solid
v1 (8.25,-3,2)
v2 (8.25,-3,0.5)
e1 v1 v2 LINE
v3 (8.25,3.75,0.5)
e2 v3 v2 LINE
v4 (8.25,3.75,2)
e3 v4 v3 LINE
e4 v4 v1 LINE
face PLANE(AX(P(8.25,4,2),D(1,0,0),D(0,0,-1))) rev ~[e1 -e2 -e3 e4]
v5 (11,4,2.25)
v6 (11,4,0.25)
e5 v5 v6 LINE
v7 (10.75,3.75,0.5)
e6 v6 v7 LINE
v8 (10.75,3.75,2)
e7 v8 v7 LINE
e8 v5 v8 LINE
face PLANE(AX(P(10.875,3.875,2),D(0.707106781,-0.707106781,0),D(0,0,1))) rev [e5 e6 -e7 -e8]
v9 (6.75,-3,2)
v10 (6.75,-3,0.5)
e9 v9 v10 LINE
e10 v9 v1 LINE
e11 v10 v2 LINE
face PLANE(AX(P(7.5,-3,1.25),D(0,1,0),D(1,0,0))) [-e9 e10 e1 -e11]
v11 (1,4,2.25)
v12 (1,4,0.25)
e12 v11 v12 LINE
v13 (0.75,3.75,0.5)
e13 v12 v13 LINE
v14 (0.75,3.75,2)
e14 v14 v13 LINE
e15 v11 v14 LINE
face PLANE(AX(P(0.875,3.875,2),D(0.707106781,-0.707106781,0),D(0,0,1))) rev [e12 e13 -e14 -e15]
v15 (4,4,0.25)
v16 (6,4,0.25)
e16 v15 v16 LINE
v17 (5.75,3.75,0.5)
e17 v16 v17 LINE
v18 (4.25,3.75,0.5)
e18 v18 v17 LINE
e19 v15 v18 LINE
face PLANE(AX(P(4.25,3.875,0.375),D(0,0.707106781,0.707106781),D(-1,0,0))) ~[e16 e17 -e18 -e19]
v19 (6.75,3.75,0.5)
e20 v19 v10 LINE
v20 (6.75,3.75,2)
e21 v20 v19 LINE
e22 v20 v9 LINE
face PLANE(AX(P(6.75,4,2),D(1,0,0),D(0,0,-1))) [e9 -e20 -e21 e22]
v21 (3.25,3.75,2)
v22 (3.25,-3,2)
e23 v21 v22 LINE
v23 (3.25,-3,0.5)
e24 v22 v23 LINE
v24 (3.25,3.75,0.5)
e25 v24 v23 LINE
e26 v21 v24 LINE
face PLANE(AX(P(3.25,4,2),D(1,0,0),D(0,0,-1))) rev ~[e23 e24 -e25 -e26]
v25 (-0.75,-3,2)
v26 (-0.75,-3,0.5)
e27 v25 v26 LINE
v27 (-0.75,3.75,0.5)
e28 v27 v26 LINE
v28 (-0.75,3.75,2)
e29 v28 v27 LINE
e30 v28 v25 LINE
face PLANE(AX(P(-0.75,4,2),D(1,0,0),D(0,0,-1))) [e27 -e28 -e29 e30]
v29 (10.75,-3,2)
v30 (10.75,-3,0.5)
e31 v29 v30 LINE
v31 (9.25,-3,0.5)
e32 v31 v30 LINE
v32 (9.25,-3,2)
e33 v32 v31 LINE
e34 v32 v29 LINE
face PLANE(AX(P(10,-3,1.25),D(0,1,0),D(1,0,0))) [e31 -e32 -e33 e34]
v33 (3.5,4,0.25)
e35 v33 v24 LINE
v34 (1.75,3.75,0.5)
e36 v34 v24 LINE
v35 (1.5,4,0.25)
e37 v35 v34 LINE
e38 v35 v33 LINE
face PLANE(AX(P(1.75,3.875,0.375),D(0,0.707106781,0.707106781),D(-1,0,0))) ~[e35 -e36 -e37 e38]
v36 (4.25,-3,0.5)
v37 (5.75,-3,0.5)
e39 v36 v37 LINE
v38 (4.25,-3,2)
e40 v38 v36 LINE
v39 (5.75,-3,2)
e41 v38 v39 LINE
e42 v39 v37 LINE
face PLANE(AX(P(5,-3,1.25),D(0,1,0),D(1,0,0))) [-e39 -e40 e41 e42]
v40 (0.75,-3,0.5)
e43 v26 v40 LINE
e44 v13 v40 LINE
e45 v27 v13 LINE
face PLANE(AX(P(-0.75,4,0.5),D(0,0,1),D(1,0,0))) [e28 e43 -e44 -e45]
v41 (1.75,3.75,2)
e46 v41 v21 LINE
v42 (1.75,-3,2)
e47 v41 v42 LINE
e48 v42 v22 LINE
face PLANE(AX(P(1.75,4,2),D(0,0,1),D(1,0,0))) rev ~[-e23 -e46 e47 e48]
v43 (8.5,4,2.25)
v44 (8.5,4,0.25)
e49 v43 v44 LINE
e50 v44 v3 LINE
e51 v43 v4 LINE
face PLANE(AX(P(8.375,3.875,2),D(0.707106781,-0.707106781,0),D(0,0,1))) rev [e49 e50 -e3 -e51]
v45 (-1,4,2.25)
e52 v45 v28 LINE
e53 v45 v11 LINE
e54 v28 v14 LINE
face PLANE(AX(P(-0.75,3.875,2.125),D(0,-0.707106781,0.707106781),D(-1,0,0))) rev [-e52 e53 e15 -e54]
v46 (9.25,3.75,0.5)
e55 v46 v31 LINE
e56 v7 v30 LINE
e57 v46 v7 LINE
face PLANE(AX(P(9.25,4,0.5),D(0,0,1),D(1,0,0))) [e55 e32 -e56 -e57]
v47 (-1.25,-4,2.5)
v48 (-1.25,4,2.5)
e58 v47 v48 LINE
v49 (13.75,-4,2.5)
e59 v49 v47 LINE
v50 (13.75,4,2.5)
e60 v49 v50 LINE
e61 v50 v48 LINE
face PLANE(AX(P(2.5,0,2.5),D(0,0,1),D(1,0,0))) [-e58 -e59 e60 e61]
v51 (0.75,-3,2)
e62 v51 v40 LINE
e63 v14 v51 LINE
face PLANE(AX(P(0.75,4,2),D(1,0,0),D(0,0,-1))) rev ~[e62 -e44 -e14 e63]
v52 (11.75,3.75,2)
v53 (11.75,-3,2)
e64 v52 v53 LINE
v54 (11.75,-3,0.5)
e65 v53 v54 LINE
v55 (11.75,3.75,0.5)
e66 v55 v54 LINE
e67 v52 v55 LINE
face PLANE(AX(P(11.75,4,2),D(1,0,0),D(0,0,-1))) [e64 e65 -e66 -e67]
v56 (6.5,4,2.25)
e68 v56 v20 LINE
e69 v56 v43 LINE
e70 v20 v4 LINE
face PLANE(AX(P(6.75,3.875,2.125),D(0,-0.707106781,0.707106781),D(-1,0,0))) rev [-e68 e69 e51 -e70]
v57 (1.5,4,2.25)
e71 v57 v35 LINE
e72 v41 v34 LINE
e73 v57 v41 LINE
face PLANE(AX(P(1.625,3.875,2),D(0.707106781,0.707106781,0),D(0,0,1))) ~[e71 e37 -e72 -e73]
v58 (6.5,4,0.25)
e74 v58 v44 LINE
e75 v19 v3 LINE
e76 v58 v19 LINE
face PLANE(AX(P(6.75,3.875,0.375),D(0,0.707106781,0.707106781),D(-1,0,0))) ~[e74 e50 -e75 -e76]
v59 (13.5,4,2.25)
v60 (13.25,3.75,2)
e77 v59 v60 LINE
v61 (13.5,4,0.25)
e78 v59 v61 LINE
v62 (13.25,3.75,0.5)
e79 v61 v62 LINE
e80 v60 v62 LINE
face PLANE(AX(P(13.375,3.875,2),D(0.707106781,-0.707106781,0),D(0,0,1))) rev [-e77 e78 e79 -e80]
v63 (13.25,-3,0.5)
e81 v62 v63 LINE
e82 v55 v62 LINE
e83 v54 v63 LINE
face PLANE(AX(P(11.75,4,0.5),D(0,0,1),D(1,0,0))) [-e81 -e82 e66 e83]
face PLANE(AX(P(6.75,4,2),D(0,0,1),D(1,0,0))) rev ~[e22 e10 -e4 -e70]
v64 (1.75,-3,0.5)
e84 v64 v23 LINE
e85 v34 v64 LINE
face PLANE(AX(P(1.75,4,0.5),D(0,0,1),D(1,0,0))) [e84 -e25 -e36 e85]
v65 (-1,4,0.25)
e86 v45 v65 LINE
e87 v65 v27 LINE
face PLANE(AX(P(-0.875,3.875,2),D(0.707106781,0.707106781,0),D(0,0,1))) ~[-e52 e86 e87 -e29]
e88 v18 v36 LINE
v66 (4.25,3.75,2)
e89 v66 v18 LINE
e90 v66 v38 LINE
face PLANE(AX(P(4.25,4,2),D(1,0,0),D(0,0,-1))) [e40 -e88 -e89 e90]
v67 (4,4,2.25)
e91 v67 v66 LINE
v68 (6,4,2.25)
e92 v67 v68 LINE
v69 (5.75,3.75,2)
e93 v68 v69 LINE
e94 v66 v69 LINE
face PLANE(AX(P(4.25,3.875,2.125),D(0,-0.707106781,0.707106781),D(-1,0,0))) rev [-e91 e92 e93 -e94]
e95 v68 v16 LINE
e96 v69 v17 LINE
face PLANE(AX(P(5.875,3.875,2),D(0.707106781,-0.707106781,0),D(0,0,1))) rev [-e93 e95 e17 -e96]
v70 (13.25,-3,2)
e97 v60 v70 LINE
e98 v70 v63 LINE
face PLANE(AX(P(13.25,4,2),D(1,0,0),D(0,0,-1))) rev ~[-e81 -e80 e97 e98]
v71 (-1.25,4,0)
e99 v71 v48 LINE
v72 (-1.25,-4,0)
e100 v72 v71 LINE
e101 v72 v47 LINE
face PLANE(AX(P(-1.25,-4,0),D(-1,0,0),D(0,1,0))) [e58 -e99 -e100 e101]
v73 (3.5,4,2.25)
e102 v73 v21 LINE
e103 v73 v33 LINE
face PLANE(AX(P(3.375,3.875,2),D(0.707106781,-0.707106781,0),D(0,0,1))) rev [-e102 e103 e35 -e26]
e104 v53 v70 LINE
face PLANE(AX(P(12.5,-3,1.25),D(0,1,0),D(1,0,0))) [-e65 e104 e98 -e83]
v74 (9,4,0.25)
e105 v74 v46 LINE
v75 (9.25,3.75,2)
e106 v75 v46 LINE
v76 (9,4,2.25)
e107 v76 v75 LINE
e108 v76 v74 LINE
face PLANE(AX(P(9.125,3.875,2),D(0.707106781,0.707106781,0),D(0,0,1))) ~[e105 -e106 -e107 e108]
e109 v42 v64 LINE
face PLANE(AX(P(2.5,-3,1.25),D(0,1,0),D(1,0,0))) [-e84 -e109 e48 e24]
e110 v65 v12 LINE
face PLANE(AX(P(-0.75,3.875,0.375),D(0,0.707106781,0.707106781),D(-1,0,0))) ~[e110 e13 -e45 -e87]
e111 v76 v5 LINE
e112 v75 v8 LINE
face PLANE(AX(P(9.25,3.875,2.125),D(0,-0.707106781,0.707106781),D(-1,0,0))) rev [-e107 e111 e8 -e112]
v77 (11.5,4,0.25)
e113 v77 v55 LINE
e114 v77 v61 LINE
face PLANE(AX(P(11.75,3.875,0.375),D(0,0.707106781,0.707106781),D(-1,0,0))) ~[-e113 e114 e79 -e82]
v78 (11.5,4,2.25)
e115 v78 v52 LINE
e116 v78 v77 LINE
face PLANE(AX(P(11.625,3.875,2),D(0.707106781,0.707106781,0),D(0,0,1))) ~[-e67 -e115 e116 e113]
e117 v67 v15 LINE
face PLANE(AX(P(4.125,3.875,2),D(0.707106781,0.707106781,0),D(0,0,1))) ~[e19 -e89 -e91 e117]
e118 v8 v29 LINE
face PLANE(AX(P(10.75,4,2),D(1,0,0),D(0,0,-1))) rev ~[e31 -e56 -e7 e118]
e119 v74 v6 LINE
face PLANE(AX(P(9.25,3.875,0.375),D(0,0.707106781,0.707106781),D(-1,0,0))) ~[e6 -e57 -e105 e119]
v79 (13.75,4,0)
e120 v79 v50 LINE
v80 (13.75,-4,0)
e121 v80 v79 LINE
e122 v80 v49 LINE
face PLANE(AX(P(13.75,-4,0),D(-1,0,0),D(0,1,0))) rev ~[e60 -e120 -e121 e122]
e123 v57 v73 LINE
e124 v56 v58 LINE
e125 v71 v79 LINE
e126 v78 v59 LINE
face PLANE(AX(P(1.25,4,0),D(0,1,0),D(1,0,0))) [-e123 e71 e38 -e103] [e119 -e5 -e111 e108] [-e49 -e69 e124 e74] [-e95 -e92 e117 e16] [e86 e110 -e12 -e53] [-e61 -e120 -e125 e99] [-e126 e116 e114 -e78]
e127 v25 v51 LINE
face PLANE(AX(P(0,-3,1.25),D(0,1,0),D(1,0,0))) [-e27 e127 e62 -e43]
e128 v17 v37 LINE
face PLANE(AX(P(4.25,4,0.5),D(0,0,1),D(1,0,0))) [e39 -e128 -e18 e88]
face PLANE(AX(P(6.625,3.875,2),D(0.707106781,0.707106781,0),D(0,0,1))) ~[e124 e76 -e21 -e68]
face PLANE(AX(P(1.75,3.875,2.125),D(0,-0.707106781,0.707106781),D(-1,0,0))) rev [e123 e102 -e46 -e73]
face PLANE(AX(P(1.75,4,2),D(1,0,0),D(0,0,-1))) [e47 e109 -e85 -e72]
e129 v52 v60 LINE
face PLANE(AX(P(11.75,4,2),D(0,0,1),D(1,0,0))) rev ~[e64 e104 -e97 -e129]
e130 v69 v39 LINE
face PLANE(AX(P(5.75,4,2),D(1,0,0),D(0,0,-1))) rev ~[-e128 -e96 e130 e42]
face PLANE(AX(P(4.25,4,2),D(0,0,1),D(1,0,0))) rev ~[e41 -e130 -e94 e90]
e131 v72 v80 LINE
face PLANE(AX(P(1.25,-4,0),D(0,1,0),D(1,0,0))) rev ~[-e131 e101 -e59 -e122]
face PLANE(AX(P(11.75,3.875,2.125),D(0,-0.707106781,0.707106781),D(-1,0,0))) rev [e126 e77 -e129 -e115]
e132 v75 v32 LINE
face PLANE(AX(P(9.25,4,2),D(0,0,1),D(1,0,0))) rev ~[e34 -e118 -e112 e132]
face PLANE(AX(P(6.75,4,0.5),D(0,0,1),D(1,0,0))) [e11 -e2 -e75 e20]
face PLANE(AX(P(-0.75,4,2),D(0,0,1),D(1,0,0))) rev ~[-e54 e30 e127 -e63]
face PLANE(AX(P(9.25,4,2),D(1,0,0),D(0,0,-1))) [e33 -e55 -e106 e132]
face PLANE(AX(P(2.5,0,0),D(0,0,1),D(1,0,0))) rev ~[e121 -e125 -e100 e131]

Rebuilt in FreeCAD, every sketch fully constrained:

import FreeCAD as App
import Part
import Sketcher
from FreeCAD import Vector


def edges_at(feature, points):
    """Names of the edges that pass closest to the given points."""
    edges = feature.Shape.Edges
    near = lambda p: min(range(len(edges)), key=lambda i: edges[i].distToShape(Part.Vertex(*p))[0])
    return sorted({f"Edge{near(p) + 1}" for p in points})

doc = App.newDocument("Part")
body = doc.addObject("PartDesign::Body", "Body")

# Sketch on XY plane
sketch1 = body.newObject("Sketcher::SketchObject", "Sketch")
sketch1.AttachmentSupport = (doc.getObject("XY_Plane"), [""])
sketch1.MapMode = "FlatFace"
sketch1.addGeometry([
    Part.LineSegment(Vector(-1.2, 4, 0), Vector(-1.2, -4, 0)),
    Part.LineSegment(Vector(-1.2, -4, 0), Vector(1.2, -4, 0)),
    Part.LineSegment(Vector(1.2, -4, 0), Vector(1.2, 4, 0)),
    Part.LineSegment(Vector(1.2, 4, 0), Vector(-1.2, 4, 0)),
], False)
sketch1.addConstraint([
    Sketcher.Constraint("Coincident", 0, 2, 1, 1),
    Sketcher.Constraint("Coincident", 1, 2, 2, 1),
    Sketcher.Constraint("Coincident", 2, 2, 3, 1),
    Sketcher.Constraint("Coincident", 3, 2, 0, 1),
    Sketcher.Constraint("Vertical", 0),
    Sketcher.Constraint("Horizontal", 1),
    Sketcher.Constraint("Vertical", 2),
    Sketcher.Constraint("Horizontal", 3),
    Sketcher.Constraint("Symmetric", 0, 2, 2, 2, -1, 1),
    Sketcher.Constraint("DistanceY", 0, 2, 0, 1, 8.0),
    Sketcher.Constraint("DistanceX", 1, 1, 1, 2, 2.5),
])
pad1 = body.newObject("PartDesign::Pad", "Pad")
pad1.Profile = sketch1
pad1.Length = 2.5

# Sketch on XZ plane
sketch2 = body.newObject("Sketcher::SketchObject", "Sketch001")
sketch2.AttachmentSupport = (doc.getObject("XZ_Plane"), [""])
sketch2.MapMode = "FlatFace"
sketch2.AttachmentOffset = App.Placement(Vector(0, 0, -4), App.Rotation())
sketch2.addGeometry([
    Part.LineSegment(Vector(-0.8, 0.5, 0), Vector(-0.8, 2, 0)),
    Part.LineSegment(Vector(-0.8, 2, 0), Vector(0.8, 2, 0)),
    Part.LineSegment(Vector(0.8, 2, 0), Vector(0.8, 0.5, 0)),
    Part.LineSegment(Vector(0.8, 0.5, 0), Vector(-0.8, 0.5, 0)),
], False)
sketch2.addConstraint([
    Sketcher.Constraint("Coincident", 0, 2, 1, 1),
    Sketcher.Constraint("Coincident", 1, 2, 2, 1),
    Sketcher.Constraint("Coincident", 2, 2, 3, 1),
    Sketcher.Constraint("Coincident", 3, 2, 0, 1),
    Sketcher.Constraint("Vertical", 0),
    Sketcher.Constraint("Horizontal", 1),
    Sketcher.Constraint("Vertical", 2),
    Sketcher.Constraint("Horizontal", 3),
    Sketcher.Constraint("Equal", 3, 0),
    Sketcher.Constraint("DistanceX", 1, 1, 1, 2, 1.5),
    Sketcher.Constraint("DistanceY", -1, 1, 0, 2, 2.0),
    Sketcher.Constraint("DistanceX", 0, 2, -1, 1, 0.75),
])
pocket1 = body.newObject("PartDesign::Pocket", "Pocket")
pocket1.Profile = sketch2
pocket1.Length = 7
pocket1.Reversed = True
doc.recompute()

chamfer = body.newObject("PartDesign::Chamfer", "Chamfer")
chamfer.Base = (pocket1, edges_at(pocket1, [
    (0, 4, 2),
    (0.75, 4, 1.25),
    (0, 4, 0.5),
    (-0.75, 4, 1.25),
]))
chamfer.Size = 0.25
doc.recompute()

linearpattern = body.newObject("PartDesign::LinearPattern", "LinearPattern")
linearpattern.Originals = [pad1, pocket1]
linearpattern.Direction = (doc.getObject("X_Axis"), [""])
linearpattern.Mode = "offset"
linearpattern.Offset = 2.5
linearpattern.Occurrences = 6
body.Tip = linearpattern
doc.recompute()

chamfer2 = body.newObject("PartDesign::Chamfer", "Chamfer001")
chamfer2.Base = (linearpattern, edges_at(linearpattern, [
    (2.5, 4, 2),
    (3.25, 4, 1.25),
    (2.5, 4, 0.5),
    (1.75, 4, 1.25),
    (5, 4, 2),
    (5.75, 4, 1.25),
    (5, 4, 0.5),
    (4.25, 4, 1.25),
    (7.5, 4, 2),
    (8.25, 4, 1.25),
    (7.5, 4, 0.5),
    (6.75, 4, 1.25),
    (10, 4, 2),
    (10.75, 4, 1.25),
    (10, 4, 0.5),
    (9.25, 4, 1.25),
    (12.5, 4, 2),
    (13.25, 4, 1.25),
    (12.5, 4, 0.5),
    (11.75, 4, 1.25),
]))
chamfer2.Size = 0.25

doc.recompute()
